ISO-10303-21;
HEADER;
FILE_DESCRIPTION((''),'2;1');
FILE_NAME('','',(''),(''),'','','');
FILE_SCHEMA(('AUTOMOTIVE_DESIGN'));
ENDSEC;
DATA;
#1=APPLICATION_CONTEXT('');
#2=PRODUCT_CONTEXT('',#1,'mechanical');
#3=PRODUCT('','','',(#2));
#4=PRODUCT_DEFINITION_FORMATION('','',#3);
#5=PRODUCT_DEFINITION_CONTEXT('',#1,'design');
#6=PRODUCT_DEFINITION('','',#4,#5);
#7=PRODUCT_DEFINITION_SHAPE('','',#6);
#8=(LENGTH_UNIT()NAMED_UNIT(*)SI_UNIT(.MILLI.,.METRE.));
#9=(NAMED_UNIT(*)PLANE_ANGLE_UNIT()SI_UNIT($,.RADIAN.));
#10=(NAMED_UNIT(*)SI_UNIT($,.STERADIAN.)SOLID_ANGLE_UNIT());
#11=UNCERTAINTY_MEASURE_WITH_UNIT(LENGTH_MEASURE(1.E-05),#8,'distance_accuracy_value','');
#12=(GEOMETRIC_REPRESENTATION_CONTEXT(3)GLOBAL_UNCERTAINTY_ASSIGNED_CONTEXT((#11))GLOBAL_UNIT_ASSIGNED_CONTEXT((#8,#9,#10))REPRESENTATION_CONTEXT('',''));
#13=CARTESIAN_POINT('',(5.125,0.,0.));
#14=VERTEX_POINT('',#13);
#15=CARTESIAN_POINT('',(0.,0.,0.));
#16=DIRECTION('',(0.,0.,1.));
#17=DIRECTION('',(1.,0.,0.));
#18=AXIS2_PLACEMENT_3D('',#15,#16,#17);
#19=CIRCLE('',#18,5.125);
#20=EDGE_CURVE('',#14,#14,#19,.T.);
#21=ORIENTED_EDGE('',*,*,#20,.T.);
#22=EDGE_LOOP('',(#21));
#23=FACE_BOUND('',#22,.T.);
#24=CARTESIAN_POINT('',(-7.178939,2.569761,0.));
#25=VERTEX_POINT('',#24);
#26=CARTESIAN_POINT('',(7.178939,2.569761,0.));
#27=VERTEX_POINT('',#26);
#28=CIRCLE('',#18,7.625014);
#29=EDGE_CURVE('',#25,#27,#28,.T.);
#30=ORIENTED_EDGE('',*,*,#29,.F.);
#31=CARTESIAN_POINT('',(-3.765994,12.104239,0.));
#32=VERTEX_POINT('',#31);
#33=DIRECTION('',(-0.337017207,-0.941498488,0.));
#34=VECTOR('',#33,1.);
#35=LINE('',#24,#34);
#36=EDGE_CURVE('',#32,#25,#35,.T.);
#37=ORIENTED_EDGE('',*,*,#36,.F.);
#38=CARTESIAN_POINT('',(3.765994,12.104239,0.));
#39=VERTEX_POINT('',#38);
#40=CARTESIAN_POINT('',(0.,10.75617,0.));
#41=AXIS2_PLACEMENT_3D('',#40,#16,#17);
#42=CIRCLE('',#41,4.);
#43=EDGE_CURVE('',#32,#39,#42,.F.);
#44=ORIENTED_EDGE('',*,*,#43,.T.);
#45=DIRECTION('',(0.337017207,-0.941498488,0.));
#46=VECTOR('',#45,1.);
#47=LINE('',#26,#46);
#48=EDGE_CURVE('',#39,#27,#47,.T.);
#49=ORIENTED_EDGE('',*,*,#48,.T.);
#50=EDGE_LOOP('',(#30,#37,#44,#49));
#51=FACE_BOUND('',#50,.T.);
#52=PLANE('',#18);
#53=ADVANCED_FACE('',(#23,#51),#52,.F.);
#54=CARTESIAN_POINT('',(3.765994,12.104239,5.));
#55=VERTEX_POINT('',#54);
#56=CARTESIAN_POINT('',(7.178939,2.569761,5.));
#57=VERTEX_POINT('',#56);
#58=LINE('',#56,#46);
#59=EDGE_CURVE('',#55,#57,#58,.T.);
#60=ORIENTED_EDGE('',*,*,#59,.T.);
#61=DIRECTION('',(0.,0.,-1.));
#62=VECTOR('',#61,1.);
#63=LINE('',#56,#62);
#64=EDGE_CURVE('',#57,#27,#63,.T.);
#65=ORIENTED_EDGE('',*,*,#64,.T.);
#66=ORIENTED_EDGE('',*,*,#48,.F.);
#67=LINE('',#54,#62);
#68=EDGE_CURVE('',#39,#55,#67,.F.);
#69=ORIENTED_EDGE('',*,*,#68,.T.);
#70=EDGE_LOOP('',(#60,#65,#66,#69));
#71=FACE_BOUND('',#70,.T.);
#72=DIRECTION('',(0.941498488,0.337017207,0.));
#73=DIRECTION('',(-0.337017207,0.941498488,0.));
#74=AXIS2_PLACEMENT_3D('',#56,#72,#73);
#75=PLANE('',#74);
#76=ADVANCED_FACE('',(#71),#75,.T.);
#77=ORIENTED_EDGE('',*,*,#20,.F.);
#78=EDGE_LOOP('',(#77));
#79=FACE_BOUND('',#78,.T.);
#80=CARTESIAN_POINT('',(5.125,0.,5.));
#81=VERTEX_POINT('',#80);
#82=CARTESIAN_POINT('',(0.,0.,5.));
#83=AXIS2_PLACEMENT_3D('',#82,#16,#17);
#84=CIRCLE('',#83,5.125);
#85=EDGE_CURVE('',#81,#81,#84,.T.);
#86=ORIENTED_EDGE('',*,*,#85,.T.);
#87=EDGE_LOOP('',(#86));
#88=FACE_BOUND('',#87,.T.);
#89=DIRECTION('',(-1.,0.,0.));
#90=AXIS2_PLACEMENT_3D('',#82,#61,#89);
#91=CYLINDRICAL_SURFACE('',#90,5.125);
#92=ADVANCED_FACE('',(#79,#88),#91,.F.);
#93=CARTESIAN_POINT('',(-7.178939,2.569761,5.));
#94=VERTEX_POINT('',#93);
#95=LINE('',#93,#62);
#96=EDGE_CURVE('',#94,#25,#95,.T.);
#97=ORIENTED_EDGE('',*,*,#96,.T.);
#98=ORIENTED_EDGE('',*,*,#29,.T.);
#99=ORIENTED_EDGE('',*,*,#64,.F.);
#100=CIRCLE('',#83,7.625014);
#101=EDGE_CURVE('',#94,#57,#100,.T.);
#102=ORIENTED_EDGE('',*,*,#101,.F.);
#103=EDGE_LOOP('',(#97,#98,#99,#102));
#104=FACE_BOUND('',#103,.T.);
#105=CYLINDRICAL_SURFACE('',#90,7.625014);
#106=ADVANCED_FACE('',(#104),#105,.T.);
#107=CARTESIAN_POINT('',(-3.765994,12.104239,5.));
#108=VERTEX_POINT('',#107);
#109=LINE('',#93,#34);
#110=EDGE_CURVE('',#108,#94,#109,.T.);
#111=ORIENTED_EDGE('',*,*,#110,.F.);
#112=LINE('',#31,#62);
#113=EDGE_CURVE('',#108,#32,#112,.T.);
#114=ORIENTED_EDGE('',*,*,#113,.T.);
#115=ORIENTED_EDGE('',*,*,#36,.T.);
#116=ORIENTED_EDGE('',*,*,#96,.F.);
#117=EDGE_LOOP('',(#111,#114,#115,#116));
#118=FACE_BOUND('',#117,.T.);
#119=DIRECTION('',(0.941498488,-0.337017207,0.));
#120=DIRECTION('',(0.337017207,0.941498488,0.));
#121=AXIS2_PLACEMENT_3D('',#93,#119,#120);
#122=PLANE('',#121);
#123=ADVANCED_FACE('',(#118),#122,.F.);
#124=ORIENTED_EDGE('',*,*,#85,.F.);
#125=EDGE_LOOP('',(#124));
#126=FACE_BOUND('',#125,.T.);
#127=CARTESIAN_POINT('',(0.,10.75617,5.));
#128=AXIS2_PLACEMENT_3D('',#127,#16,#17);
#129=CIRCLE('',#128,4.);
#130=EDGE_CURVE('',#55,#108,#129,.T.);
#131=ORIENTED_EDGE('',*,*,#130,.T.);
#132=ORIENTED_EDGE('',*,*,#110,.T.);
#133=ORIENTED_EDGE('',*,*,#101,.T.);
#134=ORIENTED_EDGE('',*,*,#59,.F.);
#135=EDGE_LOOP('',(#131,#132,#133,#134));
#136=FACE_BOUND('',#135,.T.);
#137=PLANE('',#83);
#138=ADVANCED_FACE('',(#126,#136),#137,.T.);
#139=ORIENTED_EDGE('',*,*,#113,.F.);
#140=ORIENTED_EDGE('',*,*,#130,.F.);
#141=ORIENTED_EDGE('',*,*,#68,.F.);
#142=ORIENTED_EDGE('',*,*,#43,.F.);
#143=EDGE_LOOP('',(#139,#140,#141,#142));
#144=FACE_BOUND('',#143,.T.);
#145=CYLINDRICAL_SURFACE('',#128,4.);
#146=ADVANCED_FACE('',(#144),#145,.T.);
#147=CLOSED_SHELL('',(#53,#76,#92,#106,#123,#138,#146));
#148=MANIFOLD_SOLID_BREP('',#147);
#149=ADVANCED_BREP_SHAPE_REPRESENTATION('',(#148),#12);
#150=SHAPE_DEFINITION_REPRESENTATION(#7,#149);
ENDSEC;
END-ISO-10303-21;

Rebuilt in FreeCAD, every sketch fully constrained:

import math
import FreeCAD as App
import Part
import Sketcher
from FreeCAD import Vector


def edges_at(feature, points):
    """Names of the edges that pass closest to the given points."""
    edges = feature.Shape.Edges
    near = lambda p: min(range(len(edges)), key=lambda i: edges[i].distToShape(Part.Vertex(*p))[0])
    return sorted({f"Edge{near(p) + 1}" for p in points})

doc = App.newDocument("Part")
body = doc.addObject("PartDesign::Body", "Body")

# Sketch on XY plane
sketch1 = body.newObject("Sketcher::SketchObject", "Sketch")
sketch1.AttachmentSupport = (doc.getObject("XY_Plane"), [""])
sketch1.MapMode = "FlatFace"
sketch1.addGeometry([
    Part.LineSegment(Vector(7, 3, 0), Vector(0, 23, 0)),
    Part.LineSegment(Vector(0, 23, 0), Vector(-7, 3, 0)),
    Part.ArcOfCircle(Part.Circle(Vector(0, 0, 0), Vector(0, 0, 1), 8), math.radians(160), math.radians(380)),
    Part.Circle(Vector(0, 0, 0), Vector(0, 0, 1), 5),
], False)
sketch1.addConstraint([
    Sketcher.Constraint("Coincident", 0, 2, 1, 1),
    Sketcher.Constraint("Tangent", 1, 2, 2, 1),
    Sketcher.Constraint("Tangent", 2, 2, 0, 1),
    Sketcher.Constraint("Coincident", 2, 3, -1, 1),
    Sketcher.Constraint("Coincident", 3, 3, -1, 1),
    Sketcher.Constraint("PointOnObject", 0, 2, -2),
    Sketcher.Constraint("Diameter", 3, 10.25),
    Sketcher.Constraint("DistanceY", -1, 1, 0, 2, 22.625),
    Sketcher.Constraint("Radius", 2, 7.625014),
])
pad1 = body.newObject("PartDesign::Pad", "Pad")
pad1.Profile = sketch1
pad1.Length = 5
doc.recompute()

fillet = body.newObject("PartDesign::Fillet", "Fillet")
fillet.Base = (pad1, edges_at(pad1, [(0, 22.625, 2.5)]))
fillet.Radius = 4

doc.recompute()
